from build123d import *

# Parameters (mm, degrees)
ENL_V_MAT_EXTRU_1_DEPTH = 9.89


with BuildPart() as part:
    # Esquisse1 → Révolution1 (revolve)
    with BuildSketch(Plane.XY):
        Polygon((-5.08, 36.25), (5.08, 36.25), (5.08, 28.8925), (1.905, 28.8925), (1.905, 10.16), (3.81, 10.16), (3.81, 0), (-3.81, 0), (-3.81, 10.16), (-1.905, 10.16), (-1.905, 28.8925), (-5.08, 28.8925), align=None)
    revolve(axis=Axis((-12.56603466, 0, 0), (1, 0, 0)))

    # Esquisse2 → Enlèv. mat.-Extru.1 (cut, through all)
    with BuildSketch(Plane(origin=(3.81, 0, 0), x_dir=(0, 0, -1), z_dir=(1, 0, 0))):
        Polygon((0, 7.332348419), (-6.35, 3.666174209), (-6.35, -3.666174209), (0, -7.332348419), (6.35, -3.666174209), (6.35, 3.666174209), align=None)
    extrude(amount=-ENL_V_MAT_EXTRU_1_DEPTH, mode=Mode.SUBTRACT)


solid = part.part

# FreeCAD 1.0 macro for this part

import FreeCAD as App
import Part
import Sketcher
from FreeCAD import Vector
Q = App.Units.Quantity

doc = App.newDocument("Part")
body = doc.addObject("PartDesign::Body", "Body")

# Sketch on XY plane
sketch1 = doc.addObject("Sketcher::SketchObject", "Sketch")
body.addObject(sketch1)
sketch1.AttachmentSupport = (doc.XY_Plane, [""])
sketch1.MapMode = "FlatFace"
sketch1.addGeometry(Part.LineSegment(Vector(5.1, 36.2, 0), Vector(-5.1, 36.2, 0)), False)
sketch1.addGeometry(Part.LineSegment(Vector(-5.1, 36.2, 0), Vector(-5.1, 28.9, 0)), False)
sketch1.addGeometry(Part.LineSegment(Vector(-5.1, 28.9, 0), Vector(-1.9, 28.9, 0)), False)
sketch1.addGeometry(Part.LineSegment(Vector(-1.9, 28.9, 0), Vector(-1.9, 10.2, 0)), False)
sketch1.addGeometry(Part.LineSegment(Vector(-1.9, 10.2, 0), Vector(-3.8, 10.2, 0)), False)
sketch1.addGeometry(Part.LineSegment(Vector(-3.8, 10.2, 0), Vector(-3.8, 0, 0)), False)
sketch1.addGeometry(Part.LineSegment(Vector(-3.8, 0, 0), Vector(3.8, 0, 0)), False)
sketch1.addGeometry(Part.LineSegment(Vector(3.8, 0, 0), Vector(3.8, 10.2, 0)), False)
sketch1.addGeometry(Part.LineSegment(Vector(3.8, 10.2, 0), Vector(1.9, 10.2, 0)), False)
sketch1.addGeometry(Part.LineSegment(Vector(1.9, 10.2, 0), Vector(1.9, 28.9, 0)), False)
sketch1.addGeometry(Part.LineSegment(Vector(1.9, 28.9, 0), Vector(5.1, 28.9, 0)), False)
sketch1.addGeometry(Part.LineSegment(Vector(5.1, 28.9, 0), Vector(5.1, 36.2, 0)), False)
sketch1.addConstraint(Sketcher.Constraint("Coincident", 0, 2, 1, 1))
sketch1.addConstraint(Sketcher.Constraint("Coincident", 1, 2, 2, 1))
sketch1.addConstraint(Sketcher.Constraint("Coincident", 2, 2, 3, 1))
sketch1.addConstraint(Sketcher.Constraint("Coincident", 3, 2, 4, 1))
sketch1.addConstraint(Sketcher.Constraint("Coincident", 4, 2, 5, 1))
sketch1.addConstraint(Sketcher.Constraint("Coincident", 5, 2, 6, 1))
sketch1.addConstraint(Sketcher.Constraint("Coincident", 6, 2, 7, 1))
sketch1.addConstraint(Sketcher.Constraint("Coincident", 7, 2, 8, 1))
sketch1.addConstraint(Sketcher.Constraint("Coincident", 8, 2, 9, 1))
sketch1.addConstraint(Sketcher.Constraint("Coincident", 9, 2, 10, 1))
sketch1.addConstraint(Sketcher.Constraint("Coincident", 10, 2, 11, 1))
sketch1.addConstraint(Sketcher.Constraint("Coincident", 11, 2, 0, 1))
sketch1.addConstraint(Sketcher.Constraint("Horizontal", 0))
sketch1.addConstraint(Sketcher.Constraint("Vertical", 1))
sketch1.addConstraint(Sketcher.Constraint("Horizontal", 2))
sketch1.addConstraint(Sketcher.Constraint("Vertical", 3))
sketch1.addConstraint(Sketcher.Constraint("Horizontal", 4))
sketch1.addConstraint(Sketcher.Constraint("Vertical", 5))
sketch1.addConstraint(Sketcher.Constraint("Horizontal", 6))
sketch1.addConstraint(Sketcher.Constraint("Vertical", 7))
sketch1.addConstraint(Sketcher.Constraint("Horizontal", 8))
sketch1.addConstraint(Sketcher.Constraint("Vertical", 9))
sketch1.addConstraint(Sketcher.Constraint("Horizontal", 10))
sketch1.addConstraint(Sketcher.Constraint("Vertical", 11))
sketch1.addConstraint(Sketcher.Constraint("Symmetric", 5, 2, 6, 2, -1, 1))
sketch1.addConstraint(Sketcher.Constraint("Symmetric", 3, 2, 8, 2, -2))
sketch1.addConstraint(Sketcher.Constraint("Symmetric", 1, 2, 10, 2, -2))
sketch1.addConstraint(Sketcher.Constraint("Equal", 0, 5))
sketch1.addConstraint(Sketcher.Constraint("DistanceX", 0, 2, 0, 1, Q("0.4 in")))
sketch1.addConstraint(Sketcher.Constraint("DistanceX", 6, 1, 6, 2, Q("0.3 in")))
sketch1.addConstraint(Sketcher.Constraint("DistanceX", 2, 1, 2, 2, Q("0.125 in")))
sketch1.addConstraint(Sketcher.Constraint("DistanceY", 3, 2, 3, 1, Q("0.7375 in")))
sketch1.addConstraint(Sketcher.Constraint("DistanceY", 1, 2, 1, 1, 7.3575))
revolution = doc.addObject("PartDesign::Revolution", "Revolution")
body.addObject(revolution)
revolution.Profile = sketch1
revolution.ReferenceAxis = (sketch1, ["H_Axis"])
revolution.Angle = 360

# Sketch on YZ plane
sketch2 = doc.addObject("Sketcher::SketchObject", "Sketch001")
body.addObject(sketch2)
sketch2.AttachmentSupport = (doc.YZ_Plane, [""])
sketch2.MapMode = "FlatFace"
sketch2.AttachmentOffset = App.Placement(Vector(0, 0, 0.15 * 25.4), App.Rotation())
sketch2.addGeometry(Part.LineSegment(Vector(7, 0, 0), Vector(4, 6, 0)), False)
sketch2.addGeometry(Part.LineSegment(Vector(4, 6, 0), Vector(-4, 6, 0)), False)
sketch2.addGeometry(Part.LineSegment(Vector(-4, 6, 0), Vector(-7, 0, 0)), False)
sketch2.addGeometry(Part.LineSegment(Vector(-7, 0, 0), Vector(-4, -6, 0)), False)
sketch2.addGeometry(Part.LineSegment(Vector(-4, -6, 0), Vector(4, -6, 0)), False)
sketch2.addGeometry(Part.LineSegment(Vector(4, -6, 0), Vector(7, 0, 0)), False)
sketch2.addConstraint(Sketcher.Constraint("Coincident", 0, 2, 1, 1))
sketch2.addConstraint(Sketcher.Constraint("Coincident", 1, 2, 2, 1))
sketch2.addConstraint(Sketcher.Constraint("Coincident", 2, 2, 3, 1))
sketch2.addConstraint(Sketcher.Constraint("Coincident", 3, 2, 4, 1))
sketch2.addConstraint(Sketcher.Constraint("Coincident", 4, 2, 5, 1))
sketch2.addConstraint(Sketcher.Constraint("Coincident", 5, 2, 0, 1))
sketch2.addConstraint(Sketcher.Constraint("Horizontal", 1))
sketch2.addConstraint(Sketcher.Constraint("Horizontal", 4))
sketch2.addConstraint(Sketcher.Constraint("Symmetric", 0, 2, 3, 2, -1, 1))
sketch2.addConstraint(Sketcher.Constraint("Symmetric", 2, 2, 5, 2, -1, 1))
sketch2.addConstraint(Sketcher.Constraint("PointOnObject", 2, 2, -1))
sketch2.addConstraint(Sketcher.Constraint("Parallel", 2, 5))
sketch2.addConstraint(Sketcher.Constraint("Vertical", 1, 2, 3, 2))
sketch2.addConstraint(Sketcher.Constraint("Angle", 0, Q("120 deg")))
sketch2.addConstraint(Sketcher.Constraint("DistanceY", 3, 2, 1, 2, Q("0.5 in")))
sketch2.addConstraint(Sketcher.Constraint("DistanceX", 1, 2, 1, 1, 7.332348))
pocket1 = doc.addObject("PartDesign::Pocket", "Pocket")
body.addObject(pocket1)
pocket1.Profile = sketch2
pocket1.Type = "ThroughAll"

doc.recompute()
